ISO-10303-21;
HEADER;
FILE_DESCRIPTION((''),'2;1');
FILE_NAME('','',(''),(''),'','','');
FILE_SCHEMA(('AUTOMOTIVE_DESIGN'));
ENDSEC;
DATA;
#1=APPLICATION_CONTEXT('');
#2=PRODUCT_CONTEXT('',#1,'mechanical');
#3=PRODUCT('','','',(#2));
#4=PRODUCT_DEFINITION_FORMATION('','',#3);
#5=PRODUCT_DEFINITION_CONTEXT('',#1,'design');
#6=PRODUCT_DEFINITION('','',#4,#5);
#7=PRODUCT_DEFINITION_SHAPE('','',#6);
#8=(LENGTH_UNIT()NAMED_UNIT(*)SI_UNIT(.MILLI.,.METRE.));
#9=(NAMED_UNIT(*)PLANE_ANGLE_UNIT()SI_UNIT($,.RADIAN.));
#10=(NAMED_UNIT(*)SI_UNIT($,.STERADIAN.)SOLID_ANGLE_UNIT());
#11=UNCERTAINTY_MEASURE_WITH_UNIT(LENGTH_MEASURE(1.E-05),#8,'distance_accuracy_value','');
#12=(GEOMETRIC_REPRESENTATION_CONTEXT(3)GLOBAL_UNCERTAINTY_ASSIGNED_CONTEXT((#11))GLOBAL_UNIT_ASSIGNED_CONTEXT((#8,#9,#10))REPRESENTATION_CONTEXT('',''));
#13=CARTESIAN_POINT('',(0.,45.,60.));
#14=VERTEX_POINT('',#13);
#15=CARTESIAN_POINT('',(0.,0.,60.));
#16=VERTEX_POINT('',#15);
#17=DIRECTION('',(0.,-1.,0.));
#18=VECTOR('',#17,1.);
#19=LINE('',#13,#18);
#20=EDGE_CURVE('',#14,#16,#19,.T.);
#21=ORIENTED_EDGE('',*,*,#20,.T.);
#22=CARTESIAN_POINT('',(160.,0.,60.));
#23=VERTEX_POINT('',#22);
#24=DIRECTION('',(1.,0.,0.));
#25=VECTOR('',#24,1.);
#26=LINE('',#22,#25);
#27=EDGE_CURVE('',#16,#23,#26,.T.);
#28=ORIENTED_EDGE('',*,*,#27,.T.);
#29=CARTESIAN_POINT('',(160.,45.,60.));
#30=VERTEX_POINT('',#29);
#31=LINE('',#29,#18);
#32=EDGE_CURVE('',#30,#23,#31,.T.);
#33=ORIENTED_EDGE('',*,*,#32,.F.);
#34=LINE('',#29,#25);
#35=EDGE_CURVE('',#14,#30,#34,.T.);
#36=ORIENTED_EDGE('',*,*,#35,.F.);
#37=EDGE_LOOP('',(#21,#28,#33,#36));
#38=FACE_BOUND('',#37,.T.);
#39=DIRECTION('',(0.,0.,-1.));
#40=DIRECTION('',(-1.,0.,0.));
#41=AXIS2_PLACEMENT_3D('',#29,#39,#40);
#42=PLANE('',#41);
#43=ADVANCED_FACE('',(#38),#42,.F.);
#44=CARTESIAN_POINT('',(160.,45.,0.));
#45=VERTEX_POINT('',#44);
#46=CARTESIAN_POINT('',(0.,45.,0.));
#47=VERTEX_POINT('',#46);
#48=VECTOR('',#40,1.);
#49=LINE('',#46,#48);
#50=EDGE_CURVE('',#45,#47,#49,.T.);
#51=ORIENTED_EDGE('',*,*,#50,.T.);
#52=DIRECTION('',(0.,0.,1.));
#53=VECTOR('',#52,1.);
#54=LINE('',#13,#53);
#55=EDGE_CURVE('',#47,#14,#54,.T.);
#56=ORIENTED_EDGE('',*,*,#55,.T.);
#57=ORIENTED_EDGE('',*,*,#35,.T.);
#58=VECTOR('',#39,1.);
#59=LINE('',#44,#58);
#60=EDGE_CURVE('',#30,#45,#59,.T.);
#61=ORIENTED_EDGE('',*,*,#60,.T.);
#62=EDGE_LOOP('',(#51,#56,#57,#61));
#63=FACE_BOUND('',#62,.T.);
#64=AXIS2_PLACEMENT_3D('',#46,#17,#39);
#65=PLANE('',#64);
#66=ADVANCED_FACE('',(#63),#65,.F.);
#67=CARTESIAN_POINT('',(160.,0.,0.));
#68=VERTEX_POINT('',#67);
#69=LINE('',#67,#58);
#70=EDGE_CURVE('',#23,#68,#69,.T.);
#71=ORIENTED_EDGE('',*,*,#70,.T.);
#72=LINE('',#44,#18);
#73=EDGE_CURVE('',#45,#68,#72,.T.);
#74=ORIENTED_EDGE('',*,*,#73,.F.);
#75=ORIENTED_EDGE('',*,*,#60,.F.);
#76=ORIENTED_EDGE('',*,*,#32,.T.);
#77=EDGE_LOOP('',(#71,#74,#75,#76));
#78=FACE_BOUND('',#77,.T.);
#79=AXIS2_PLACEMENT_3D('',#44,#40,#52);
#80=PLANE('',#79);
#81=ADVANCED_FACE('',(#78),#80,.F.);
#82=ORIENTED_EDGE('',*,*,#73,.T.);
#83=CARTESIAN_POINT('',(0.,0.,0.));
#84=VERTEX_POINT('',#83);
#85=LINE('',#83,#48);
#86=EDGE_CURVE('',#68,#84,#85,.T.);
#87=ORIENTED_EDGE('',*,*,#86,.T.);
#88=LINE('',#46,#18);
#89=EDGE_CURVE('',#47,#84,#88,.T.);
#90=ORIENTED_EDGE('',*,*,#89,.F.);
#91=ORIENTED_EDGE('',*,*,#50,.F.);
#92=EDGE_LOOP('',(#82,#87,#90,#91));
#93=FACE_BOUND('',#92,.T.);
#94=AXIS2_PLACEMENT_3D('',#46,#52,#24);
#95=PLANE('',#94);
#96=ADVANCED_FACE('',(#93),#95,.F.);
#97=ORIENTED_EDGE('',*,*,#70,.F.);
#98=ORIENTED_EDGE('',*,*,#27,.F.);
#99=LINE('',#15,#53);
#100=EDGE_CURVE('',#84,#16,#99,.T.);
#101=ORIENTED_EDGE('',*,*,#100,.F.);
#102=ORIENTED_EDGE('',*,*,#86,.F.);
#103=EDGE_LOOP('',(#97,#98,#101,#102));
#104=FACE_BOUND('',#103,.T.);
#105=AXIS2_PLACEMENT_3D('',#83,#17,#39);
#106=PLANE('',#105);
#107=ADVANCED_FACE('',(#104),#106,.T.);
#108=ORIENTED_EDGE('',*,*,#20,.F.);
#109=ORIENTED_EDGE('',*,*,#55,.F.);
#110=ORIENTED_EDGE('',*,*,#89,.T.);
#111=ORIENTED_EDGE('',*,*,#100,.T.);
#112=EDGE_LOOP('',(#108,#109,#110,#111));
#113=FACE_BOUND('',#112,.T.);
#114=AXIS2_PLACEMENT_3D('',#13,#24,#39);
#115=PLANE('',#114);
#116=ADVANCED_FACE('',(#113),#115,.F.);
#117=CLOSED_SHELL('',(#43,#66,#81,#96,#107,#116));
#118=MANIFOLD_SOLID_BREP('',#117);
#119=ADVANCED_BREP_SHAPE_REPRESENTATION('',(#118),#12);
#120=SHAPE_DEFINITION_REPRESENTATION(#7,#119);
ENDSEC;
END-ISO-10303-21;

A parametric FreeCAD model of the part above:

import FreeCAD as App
import Part
import Sketcher

doc = App.newDocument("Part")
params = doc.addObject("Spreadsheet::Sheet", "Params")
for row, (alias, value) in enumerate([
    ("sketch1_width", "160 mm"),
    ("sketch1_height", "60 mm"),
    ("pad1_length", "45 mm"),
], start=1):
    params.set(f"A{row}", alias)
    params.set(f"B{row}", "=" + value)
    params.setAlias(f"B{row}", alias)

body = doc.addObject("PartDesign::Body", "Body")

sketch1 = body.newObject("Sketcher::SketchObject", "Sketch")
sketch1.AttachmentSupport = (doc.getObject("XZ_Plane"), [""])
sketch1.MapMode = "FlatFace"
sketch1.addGeometry([
    Part.LineSegment(App.Vector(0, 0, 0), App.Vector(0, 60, 0)),
    Part.LineSegment(App.Vector(0, 60, 0), App.Vector(160, 60, 0)),
    Part.LineSegment(App.Vector(160, 60, 0), App.Vector(160, 0, 0)),
    Part.LineSegment(App.Vector(160, 0, 0), App.Vector(0, 0, 0)),
], False)
sketch1.addConstraint([
    Sketcher.Constraint("Coincident", 0, 2, 1, 1),
    Sketcher.Constraint("Coincident", 1, 2, 2, 1),
    Sketcher.Constraint("Coincident", 2, 2, 3, 1),
    Sketcher.Constraint("Coincident", 3, 2, 0, 1),
    Sketcher.Constraint("Vertical", 0),
    Sketcher.Constraint("Horizontal", 1),
    Sketcher.Constraint("Vertical", 2),
    Sketcher.Constraint("Horizontal", 3),
    Sketcher.Constraint("Coincident", 3, 2, -1, 1),
    Sketcher.Constraint("DistanceX", 1, 1, 1, 2, 160.0),
    Sketcher.Constraint("DistanceY", 0, 1, 0, 2, 60.0),
])
sketch1.setExpression("Constraints[9]", "Params.sketch1_width")
sketch1.setExpression("Constraints[10]", "Params.sketch1_height")
pad1 = body.newObject("PartDesign::Pad", "Pad")
pad1.Profile = sketch1
pad1.setExpression("Length", "Params.pad1_length")
pad1.Reversed = True

doc.recompute()
